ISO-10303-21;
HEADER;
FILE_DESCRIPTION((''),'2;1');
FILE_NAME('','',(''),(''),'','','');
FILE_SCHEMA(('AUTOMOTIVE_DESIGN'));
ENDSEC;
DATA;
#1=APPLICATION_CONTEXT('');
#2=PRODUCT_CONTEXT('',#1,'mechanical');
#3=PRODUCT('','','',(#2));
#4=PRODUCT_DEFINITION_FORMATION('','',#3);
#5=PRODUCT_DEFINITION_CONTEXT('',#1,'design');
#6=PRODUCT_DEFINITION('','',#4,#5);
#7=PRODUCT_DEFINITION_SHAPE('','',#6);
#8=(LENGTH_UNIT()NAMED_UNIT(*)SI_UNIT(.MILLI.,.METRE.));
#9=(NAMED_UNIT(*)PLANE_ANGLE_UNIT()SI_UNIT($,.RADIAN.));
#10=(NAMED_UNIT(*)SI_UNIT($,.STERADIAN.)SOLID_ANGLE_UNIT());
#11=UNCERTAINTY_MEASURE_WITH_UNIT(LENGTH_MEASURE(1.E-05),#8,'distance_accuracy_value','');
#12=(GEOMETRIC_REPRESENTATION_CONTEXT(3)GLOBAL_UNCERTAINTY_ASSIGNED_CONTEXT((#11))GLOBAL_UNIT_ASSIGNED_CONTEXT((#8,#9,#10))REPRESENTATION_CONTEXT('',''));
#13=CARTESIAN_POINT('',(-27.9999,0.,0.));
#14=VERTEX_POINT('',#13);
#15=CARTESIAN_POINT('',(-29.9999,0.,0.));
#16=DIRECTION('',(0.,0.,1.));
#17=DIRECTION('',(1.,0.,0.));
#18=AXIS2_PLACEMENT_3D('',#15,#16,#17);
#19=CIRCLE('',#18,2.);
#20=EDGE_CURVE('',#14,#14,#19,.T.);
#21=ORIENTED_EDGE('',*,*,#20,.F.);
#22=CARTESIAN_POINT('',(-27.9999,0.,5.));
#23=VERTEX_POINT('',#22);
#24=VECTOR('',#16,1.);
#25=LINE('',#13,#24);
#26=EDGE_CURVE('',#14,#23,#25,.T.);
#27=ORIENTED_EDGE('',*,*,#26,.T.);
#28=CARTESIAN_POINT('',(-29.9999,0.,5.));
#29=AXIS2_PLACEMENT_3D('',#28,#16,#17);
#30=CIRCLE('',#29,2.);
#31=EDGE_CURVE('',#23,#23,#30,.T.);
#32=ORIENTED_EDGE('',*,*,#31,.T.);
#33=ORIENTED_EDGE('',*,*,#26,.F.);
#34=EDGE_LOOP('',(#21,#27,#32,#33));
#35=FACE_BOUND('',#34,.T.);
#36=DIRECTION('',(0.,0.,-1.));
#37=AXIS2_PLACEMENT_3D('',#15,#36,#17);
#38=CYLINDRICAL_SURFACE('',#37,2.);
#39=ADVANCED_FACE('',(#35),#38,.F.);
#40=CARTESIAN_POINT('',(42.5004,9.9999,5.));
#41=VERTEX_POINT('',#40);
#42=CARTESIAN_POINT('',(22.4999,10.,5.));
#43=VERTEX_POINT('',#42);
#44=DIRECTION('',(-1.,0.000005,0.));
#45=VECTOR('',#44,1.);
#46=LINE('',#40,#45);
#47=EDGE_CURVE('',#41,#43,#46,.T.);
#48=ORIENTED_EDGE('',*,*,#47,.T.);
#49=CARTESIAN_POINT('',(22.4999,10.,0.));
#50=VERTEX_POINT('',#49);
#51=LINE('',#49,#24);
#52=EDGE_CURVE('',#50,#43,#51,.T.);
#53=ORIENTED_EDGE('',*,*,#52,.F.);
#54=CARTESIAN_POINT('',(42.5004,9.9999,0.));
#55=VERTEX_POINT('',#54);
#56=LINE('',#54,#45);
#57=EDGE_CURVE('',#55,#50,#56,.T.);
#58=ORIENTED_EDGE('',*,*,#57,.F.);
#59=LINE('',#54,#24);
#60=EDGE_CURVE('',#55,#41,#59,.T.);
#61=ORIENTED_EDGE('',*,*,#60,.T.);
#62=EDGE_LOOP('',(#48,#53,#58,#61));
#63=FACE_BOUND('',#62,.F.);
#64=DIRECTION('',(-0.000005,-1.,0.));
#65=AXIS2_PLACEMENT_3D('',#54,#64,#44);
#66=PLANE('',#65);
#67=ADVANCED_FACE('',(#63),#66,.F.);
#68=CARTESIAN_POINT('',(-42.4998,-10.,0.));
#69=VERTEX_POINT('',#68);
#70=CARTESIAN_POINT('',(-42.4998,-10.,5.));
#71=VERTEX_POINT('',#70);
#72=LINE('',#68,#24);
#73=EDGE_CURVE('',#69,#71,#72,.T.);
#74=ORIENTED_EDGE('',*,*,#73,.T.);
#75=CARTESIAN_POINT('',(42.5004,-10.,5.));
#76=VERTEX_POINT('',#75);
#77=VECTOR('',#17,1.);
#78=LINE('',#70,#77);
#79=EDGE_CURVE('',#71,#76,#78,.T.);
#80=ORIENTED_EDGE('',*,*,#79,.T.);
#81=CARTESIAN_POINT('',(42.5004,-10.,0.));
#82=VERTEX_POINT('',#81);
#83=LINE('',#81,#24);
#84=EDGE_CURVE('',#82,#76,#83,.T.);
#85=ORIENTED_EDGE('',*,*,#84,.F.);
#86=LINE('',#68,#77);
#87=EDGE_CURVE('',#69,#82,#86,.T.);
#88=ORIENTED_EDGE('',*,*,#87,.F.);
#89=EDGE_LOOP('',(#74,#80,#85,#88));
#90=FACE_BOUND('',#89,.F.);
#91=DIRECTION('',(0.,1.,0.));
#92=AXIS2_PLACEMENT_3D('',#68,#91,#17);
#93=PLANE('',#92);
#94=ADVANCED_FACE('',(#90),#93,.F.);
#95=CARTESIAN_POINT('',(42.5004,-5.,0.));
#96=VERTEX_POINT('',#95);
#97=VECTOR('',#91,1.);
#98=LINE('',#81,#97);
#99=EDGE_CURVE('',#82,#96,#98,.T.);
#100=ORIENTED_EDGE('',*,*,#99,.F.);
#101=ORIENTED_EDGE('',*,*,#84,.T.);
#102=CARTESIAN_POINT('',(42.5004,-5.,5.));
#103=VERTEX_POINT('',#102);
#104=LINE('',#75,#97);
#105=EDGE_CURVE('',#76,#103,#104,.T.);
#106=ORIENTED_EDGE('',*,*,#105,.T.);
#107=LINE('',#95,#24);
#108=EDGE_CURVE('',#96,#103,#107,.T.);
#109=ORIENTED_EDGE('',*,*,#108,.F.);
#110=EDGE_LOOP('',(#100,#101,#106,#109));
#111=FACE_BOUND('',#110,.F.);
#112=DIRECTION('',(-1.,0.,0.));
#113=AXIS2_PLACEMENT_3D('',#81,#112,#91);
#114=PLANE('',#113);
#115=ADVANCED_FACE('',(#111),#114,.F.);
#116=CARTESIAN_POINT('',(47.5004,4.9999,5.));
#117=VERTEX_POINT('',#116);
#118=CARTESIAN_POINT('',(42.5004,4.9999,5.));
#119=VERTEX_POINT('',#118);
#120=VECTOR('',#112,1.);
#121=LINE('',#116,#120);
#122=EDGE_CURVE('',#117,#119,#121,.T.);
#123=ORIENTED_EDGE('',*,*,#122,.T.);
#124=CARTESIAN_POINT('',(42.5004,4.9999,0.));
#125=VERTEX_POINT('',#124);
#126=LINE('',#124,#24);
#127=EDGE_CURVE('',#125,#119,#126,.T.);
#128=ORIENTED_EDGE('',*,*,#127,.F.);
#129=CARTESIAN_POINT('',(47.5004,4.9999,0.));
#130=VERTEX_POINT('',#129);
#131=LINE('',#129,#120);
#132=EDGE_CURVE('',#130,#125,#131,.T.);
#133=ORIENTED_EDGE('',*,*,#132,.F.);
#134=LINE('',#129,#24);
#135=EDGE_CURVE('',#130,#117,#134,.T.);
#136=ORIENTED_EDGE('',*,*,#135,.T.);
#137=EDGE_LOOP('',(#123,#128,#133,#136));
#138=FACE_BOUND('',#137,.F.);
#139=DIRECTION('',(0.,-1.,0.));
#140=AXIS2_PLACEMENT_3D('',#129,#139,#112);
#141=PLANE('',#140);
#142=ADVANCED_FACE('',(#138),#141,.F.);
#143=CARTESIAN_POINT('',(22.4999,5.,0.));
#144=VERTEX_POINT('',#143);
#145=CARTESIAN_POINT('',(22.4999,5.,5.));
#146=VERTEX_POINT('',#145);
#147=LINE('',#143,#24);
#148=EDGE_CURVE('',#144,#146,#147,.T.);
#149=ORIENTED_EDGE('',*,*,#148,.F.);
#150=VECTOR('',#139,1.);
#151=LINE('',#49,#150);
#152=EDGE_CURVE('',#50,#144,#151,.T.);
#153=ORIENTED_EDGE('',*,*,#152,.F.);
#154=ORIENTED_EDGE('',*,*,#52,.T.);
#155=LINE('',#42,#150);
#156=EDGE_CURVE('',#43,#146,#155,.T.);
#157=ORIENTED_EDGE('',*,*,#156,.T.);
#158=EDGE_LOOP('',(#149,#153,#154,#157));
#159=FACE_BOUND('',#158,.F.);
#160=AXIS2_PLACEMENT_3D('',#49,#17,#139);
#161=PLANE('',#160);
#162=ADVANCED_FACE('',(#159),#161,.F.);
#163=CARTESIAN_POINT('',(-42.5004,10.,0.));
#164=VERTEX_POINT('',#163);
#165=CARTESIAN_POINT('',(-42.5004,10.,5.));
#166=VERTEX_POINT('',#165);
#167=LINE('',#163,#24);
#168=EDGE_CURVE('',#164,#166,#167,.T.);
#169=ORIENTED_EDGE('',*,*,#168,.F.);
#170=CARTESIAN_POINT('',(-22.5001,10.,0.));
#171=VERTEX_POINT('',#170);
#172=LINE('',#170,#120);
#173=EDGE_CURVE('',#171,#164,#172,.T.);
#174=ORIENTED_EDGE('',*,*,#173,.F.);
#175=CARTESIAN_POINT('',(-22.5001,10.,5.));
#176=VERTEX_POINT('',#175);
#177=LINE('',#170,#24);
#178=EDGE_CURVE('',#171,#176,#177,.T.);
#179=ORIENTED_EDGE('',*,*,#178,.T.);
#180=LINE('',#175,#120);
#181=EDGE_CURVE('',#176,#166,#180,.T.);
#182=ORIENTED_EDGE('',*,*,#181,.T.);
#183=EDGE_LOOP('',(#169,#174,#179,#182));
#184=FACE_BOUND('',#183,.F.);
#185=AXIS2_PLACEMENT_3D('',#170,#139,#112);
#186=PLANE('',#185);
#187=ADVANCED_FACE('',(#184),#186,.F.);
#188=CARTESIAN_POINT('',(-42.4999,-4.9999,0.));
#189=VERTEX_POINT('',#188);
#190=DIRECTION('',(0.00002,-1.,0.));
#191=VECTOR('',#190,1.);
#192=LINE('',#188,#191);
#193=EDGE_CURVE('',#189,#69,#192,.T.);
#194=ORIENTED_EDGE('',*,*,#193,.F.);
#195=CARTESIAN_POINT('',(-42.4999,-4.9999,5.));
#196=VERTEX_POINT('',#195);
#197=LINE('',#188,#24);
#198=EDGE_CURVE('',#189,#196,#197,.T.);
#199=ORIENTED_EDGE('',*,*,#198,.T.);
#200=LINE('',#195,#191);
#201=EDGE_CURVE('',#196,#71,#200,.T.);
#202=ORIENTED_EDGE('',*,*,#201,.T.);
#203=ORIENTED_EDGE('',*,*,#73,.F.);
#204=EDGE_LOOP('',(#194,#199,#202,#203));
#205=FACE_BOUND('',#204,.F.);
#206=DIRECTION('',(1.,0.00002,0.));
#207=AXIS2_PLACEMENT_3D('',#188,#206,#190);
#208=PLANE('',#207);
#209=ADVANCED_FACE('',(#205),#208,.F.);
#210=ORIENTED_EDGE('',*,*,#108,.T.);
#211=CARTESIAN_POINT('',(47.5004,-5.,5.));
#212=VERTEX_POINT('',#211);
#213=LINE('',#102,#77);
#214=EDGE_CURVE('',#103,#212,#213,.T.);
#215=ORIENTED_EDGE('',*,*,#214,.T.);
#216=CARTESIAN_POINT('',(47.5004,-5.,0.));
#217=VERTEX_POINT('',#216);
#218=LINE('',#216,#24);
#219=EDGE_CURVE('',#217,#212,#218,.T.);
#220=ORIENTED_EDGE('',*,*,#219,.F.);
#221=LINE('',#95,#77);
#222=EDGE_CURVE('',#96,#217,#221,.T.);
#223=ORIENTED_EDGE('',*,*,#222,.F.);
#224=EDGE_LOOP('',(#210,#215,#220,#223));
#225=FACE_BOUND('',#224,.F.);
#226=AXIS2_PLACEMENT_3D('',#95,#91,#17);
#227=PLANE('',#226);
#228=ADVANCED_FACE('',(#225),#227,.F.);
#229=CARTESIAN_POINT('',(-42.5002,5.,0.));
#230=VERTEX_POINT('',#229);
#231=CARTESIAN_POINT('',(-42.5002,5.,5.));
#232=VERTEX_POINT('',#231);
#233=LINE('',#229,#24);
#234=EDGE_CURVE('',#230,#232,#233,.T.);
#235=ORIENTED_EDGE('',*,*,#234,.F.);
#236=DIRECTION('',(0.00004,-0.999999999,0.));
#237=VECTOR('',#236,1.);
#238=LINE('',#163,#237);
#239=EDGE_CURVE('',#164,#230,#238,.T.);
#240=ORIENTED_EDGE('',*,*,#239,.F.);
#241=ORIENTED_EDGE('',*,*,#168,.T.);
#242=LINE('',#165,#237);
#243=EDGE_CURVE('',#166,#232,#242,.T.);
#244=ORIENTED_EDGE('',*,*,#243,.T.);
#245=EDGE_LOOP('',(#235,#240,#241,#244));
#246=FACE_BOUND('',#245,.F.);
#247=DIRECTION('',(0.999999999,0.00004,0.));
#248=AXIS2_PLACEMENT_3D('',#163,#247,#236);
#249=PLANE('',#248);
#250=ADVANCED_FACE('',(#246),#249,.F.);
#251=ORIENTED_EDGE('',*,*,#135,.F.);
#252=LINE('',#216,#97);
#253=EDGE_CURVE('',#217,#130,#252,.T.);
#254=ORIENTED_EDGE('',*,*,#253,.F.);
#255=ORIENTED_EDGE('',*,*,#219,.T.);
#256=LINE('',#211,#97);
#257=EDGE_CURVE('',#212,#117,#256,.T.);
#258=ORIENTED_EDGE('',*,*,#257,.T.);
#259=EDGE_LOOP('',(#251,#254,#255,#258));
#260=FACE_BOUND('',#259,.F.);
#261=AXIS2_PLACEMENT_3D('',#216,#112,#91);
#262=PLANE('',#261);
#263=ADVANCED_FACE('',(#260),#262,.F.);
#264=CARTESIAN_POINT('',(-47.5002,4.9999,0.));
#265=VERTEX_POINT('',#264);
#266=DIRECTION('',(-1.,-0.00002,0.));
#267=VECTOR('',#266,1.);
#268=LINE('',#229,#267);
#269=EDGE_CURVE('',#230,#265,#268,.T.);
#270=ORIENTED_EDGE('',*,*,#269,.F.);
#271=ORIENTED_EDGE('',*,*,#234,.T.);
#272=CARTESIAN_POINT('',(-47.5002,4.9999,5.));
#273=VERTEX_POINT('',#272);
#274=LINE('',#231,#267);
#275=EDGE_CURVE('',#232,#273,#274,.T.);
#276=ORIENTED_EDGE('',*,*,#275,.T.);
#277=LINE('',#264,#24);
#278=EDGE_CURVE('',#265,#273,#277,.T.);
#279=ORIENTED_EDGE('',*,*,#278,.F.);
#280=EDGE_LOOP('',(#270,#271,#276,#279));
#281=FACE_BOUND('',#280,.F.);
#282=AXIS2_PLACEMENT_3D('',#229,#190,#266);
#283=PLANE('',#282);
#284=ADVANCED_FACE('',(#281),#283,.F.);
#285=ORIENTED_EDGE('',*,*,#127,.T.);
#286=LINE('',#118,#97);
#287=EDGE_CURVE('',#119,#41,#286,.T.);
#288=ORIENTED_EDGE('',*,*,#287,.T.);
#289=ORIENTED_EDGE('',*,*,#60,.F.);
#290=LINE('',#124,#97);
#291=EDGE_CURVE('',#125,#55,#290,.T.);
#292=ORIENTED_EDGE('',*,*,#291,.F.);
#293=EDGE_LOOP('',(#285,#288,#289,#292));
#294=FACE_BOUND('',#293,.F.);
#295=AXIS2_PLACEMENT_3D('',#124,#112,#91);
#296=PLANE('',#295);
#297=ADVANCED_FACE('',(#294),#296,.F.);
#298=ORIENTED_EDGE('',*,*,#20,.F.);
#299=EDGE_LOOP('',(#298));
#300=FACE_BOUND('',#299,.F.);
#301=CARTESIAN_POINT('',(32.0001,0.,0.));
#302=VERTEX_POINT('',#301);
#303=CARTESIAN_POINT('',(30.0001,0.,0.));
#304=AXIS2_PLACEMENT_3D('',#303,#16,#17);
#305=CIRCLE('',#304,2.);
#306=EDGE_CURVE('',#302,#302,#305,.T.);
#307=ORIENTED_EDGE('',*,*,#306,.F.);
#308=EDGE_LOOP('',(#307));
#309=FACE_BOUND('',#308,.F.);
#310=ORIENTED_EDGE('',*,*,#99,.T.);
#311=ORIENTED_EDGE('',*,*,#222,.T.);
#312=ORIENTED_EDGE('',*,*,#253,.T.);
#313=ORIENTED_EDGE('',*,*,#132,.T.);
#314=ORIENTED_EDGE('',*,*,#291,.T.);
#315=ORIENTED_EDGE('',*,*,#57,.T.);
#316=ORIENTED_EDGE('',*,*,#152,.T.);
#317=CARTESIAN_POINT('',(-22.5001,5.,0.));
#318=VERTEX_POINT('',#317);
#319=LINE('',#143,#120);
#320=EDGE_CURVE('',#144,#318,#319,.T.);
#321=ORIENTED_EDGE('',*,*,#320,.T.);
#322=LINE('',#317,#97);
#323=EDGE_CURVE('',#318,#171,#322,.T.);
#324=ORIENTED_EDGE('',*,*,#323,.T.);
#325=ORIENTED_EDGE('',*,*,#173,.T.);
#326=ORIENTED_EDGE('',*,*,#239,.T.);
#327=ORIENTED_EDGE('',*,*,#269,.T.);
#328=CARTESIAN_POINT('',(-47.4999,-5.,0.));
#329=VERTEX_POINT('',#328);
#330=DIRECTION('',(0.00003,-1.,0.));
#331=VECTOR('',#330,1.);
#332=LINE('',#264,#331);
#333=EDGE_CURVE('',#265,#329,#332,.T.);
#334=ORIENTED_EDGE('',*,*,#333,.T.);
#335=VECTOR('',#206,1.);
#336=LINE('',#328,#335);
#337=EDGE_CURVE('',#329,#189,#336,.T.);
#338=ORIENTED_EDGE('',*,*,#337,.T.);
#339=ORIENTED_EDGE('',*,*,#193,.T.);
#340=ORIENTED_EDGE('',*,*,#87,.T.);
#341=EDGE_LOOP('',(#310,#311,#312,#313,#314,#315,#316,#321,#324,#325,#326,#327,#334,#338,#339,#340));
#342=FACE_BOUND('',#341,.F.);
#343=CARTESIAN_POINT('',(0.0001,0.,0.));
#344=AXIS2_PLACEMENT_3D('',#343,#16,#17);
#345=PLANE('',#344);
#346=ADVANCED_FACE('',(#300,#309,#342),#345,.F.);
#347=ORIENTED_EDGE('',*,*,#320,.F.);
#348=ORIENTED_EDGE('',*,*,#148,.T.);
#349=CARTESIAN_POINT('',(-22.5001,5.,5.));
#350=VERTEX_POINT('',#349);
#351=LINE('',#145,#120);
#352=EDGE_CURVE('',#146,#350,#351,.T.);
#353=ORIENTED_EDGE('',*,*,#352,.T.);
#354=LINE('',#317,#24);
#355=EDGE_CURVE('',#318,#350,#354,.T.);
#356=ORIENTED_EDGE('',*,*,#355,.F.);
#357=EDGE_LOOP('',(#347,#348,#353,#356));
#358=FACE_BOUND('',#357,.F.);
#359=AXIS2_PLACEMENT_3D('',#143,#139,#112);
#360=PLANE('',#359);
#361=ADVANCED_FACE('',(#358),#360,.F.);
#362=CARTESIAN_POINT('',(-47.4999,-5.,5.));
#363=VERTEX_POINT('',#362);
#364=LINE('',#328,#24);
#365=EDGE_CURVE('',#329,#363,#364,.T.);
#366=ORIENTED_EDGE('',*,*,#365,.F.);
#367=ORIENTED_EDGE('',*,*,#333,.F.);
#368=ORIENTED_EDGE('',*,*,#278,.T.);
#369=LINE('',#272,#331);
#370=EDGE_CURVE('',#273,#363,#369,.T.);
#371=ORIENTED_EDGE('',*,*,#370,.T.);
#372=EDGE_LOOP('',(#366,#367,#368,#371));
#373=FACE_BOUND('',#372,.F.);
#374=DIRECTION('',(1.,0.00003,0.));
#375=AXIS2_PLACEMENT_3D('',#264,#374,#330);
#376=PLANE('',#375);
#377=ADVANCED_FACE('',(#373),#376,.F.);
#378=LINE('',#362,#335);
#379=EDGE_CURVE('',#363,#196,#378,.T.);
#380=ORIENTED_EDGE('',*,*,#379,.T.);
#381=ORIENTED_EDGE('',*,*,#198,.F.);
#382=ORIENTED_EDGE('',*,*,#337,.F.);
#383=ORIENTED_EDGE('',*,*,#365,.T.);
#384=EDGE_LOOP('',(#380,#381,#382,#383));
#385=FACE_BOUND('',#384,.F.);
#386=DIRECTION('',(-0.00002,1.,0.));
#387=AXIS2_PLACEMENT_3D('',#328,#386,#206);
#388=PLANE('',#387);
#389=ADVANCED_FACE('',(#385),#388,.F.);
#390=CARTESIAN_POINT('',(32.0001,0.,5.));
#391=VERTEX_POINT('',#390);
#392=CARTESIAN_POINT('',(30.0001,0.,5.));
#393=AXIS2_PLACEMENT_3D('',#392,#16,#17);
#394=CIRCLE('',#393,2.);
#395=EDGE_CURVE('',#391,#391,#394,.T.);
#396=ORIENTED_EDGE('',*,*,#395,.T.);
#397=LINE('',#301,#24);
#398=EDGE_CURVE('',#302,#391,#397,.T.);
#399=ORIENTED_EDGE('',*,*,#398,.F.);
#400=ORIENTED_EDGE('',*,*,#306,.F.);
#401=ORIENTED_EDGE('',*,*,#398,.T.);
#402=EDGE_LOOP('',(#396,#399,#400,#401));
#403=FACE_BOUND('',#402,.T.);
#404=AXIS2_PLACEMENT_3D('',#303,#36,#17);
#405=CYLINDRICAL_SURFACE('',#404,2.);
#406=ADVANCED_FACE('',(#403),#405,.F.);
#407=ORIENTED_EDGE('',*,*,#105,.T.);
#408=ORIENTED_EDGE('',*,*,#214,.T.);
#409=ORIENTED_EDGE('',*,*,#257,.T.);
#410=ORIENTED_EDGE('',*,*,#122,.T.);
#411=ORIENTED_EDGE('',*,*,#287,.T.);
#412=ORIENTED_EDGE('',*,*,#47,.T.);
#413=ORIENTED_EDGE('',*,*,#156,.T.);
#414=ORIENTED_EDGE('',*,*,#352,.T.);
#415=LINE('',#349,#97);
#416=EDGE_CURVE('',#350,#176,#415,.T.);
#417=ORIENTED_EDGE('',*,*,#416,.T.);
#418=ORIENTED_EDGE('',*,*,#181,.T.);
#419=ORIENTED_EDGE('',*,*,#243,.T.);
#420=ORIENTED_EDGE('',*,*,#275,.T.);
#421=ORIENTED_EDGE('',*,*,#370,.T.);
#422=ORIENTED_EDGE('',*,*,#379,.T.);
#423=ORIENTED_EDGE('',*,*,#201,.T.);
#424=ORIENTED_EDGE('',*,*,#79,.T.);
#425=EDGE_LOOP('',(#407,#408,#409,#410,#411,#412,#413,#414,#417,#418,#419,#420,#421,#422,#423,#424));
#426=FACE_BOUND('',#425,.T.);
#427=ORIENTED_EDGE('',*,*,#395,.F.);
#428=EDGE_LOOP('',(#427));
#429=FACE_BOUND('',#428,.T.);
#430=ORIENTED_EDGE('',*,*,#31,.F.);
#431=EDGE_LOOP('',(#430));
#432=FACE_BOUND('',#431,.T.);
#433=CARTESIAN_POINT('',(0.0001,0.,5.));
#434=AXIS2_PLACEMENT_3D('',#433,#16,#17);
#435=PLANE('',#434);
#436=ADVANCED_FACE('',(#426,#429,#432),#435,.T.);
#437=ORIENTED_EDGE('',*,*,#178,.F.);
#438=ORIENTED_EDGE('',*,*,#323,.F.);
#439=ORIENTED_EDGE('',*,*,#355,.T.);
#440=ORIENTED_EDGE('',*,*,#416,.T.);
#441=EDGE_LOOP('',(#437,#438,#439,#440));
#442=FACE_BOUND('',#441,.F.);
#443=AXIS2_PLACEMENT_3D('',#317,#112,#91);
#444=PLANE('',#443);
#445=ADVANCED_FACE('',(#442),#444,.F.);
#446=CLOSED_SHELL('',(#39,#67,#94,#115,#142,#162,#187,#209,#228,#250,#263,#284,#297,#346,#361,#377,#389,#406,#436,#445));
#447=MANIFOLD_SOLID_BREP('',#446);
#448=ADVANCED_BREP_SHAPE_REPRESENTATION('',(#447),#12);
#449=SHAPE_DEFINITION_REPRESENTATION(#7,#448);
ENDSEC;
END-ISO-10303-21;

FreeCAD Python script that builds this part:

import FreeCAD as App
import Part
import Sketcher


def add_polygon(sketch, points):
    """Adds a closed chain of lines whose ends are joined by coincident constraints."""
    first, n = sketch.GeometryCount, len(points)
    for a, b in zip(points, points[1:] + points[:1]):
        sketch.addGeometry(Part.LineSegment(App.Vector(*a, 0), App.Vector(*b, 0)), False)
    for i in range(n):
        sketch.addConstraint(Sketcher.Constraint("Coincident", first + i, 2, first + (i + 1) % n, 1))

doc = App.newDocument("Part")
body = doc.addObject("PartDesign::Body", "Body")

# Sketch on XY plane
sketch1 = doc.addObject("Sketcher::SketchObject", "Sketch")
body.addObject(sketch1)
sketch1.AttachmentSupport = (doc.XY_Plane, [""])
sketch1.MapMode = "FlatFace"
add_polygon(sketch1, [(42.5, -5), (47.5, -5), (47.5, 5), (42.5, 5), (42.5, 10), (22.5, 10), (22.5, 5), (-22.5, 5), (-22.5, 10), (-42.5, 10), (-42.5, 5), (-47.5, 5), (-47.5, -5), (-42.5, -5), (-42.5, -10), (42.5, -10)])  # lines 0-15
sketch1.addGeometry(Part.Circle(App.Vector(-30, 0, 0), App.Vector(0, 0, 1), 2), False)  # 16
sketch1.addGeometry(Part.Circle(App.Vector(30, 0, 0), App.Vector(0, 0, 1), 2), False)  # 17
sketch1.addConstraint(Sketcher.Constraint("Horizontal", 0))
sketch1.addConstraint(Sketcher.Constraint("Vertical", 1))
sketch1.addConstraint(Sketcher.Constraint("Horizontal", 2))
sketch1.addConstraint(Sketcher.Constraint("Vertical", 3))
sketch1.addConstraint(Sketcher.Constraint("Horizontal", 4))
sketch1.addConstraint(Sketcher.Constraint("Vertical", 5))
sketch1.addConstraint(Sketcher.Constraint("Horizontal", 6))
sketch1.addConstraint(Sketcher.Constraint("Vertical", 7))
sketch1.addConstraint(Sketcher.Constraint("Horizontal", 8))
sketch1.addConstraint(Sketcher.Constraint("Vertical", 9))
sketch1.addConstraint(Sketcher.Constraint("Horizontal", 10))
sketch1.addConstraint(Sketcher.Constraint("Horizontal", 12))
sketch1.addConstraint(Sketcher.Constraint("Vertical", 13))
sketch1.addConstraint(Sketcher.Constraint("Horizontal", 14))
sketch1.addConstraint(Sketcher.Constraint("Vertical", 15))
sketch1.addConstraint(Sketcher.Constraint("Equal", 16, 17))
sketch1.addConstraint(Sketcher.Constraint("Symmetric", 16, 3, 17, 3, -1, 1))
sketch1.addConstraint(Sketcher.Constraint("Symmetric", 0, 2, 10, 2, -1, 1))
sketch1.addConstraint(Sketcher.Constraint("Symmetric", 8, 2, 14, 2, -1, 1))
sketch1.addConstraint(Sketcher.Constraint("Symmetric", 4, 2, 7, 2, -2))
sketch1.addConstraint(Sketcher.Constraint("Symmetric", 2, 2, 9, 2, -2))
sketch1.addConstraint(Sketcher.Constraint("Symmetric", 10, 2, 11, 2, -1))
sketch1.addConstraint(Sketcher.Constraint("PointOnObject", 16, 3, -1))
sketch1.addConstraint(Sketcher.Constraint("Horizontal", 2, 2, 5, 2))
sketch1.addConstraint(Sketcher.Constraint("Equal", 10, 12))
sketch1.addConstraint(Sketcher.Constraint("Equal", 12, 3))
sketch1.addConstraint(Sketcher.Constraint("Diameter", 16, 4.0))
sketch1.addConstraint(Sketcher.Constraint("DistanceX", 0, 1, 0, 2, 5.0))
sketch1.addConstraint(Sketcher.Constraint("DistanceX", 6, 2, 6, 1, 45.0))
sketch1.addConstraint(Sketcher.Constraint("DistanceY", 1, 1, 1, 2, 10.0))
sketch1.addConstraint(Sketcher.Constraint("DistanceX", 16, 3, -1, 1, 30.0))
sketch1.addConstraint(Sketcher.Constraint("DistanceX", 9, 2, 6, 2, 20.0))
pad1 = doc.addObject("PartDesign::Pad", "Pad")
body.addObject(pad1)
pad1.Profile = sketch1
pad1.Length = 5

doc.recompute()
